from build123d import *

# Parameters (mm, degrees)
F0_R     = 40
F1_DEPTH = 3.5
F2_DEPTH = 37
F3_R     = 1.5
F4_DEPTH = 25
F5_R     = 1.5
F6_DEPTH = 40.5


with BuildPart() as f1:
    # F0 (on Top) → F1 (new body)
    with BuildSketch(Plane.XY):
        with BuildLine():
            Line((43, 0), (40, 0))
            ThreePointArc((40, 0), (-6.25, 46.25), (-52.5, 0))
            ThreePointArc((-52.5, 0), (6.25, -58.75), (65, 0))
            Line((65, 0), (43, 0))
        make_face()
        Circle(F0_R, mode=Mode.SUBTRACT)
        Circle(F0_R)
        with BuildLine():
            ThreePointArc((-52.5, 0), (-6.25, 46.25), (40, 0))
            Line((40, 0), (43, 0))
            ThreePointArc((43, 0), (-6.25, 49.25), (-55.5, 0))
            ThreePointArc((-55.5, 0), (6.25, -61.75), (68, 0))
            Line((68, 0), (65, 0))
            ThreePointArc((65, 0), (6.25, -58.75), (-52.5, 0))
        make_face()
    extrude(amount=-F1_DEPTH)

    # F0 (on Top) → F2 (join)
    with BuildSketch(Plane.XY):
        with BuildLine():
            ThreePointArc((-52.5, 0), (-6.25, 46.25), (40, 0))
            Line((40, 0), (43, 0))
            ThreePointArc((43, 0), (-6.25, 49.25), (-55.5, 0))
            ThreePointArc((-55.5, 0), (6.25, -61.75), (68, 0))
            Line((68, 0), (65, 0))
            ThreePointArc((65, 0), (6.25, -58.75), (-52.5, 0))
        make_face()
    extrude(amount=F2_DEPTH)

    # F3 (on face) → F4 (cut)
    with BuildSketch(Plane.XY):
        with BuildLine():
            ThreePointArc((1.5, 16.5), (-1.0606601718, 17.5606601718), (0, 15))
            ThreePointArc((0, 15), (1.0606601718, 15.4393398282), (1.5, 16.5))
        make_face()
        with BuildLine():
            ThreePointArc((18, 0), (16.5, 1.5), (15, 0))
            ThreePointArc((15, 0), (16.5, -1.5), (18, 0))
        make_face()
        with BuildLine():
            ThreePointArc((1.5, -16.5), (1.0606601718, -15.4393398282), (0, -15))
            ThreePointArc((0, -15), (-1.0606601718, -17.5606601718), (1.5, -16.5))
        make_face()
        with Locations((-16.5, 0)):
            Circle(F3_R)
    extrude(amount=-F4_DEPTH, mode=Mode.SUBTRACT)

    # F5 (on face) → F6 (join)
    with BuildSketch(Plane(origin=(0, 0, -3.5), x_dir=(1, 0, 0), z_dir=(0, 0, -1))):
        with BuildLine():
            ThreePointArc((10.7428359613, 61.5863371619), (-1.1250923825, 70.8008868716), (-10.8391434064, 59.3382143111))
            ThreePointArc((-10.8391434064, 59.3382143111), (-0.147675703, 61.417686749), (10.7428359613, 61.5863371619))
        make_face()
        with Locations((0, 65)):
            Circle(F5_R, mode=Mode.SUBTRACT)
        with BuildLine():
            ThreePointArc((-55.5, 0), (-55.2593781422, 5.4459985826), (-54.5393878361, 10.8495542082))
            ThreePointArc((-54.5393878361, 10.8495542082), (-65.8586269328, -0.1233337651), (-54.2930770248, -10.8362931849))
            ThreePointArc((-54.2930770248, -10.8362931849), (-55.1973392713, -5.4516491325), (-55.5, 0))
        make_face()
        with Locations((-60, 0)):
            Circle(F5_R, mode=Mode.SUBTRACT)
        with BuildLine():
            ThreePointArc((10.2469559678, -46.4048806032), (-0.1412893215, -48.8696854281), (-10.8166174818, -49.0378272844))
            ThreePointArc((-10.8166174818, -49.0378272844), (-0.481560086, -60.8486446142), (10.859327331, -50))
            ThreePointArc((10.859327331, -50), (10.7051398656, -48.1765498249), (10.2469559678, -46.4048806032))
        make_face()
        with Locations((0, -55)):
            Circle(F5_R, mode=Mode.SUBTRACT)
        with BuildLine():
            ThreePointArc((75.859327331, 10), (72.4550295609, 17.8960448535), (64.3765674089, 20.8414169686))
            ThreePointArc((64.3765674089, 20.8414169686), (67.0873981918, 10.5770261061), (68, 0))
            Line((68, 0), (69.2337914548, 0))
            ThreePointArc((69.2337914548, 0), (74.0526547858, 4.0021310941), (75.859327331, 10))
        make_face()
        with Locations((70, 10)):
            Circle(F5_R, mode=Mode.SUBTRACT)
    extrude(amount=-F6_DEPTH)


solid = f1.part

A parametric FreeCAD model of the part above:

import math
import FreeCAD as App
import Part
import Sketcher
from FreeCAD import Vector

doc = App.newDocument("Part")
body = doc.addObject("PartDesign::Body", "Body")

sketch1 = body.newObject("Sketcher::SketchObject", "Sketch")
sketch1.AttachmentSupport = (doc.getObject("XY_Plane"), [""])
sketch1.MapMode = "FlatFace"
sketch1.addGeometry([
    Part.ArcOfCircle(Part.Circle(Vector(-6.25, 0, 0), Vector(0, 0, 1), 49.25), math.radians(0), math.radians(180)),
    Part.ArcOfCircle(Part.Circle(Vector(6.25, 0, 0), Vector(0, 0, 1), 61.75), math.radians(180), math.radians(360)),
    Part.LineSegment(Vector(68, 0, 0), Vector(43, 0, 0)),
], False)
sketch1.addConstraint([
    Sketcher.Constraint("Tangent", 0, 2, 1, 1),
    Sketcher.Constraint("Coincident", 1, 2, 2, 1),
    Sketcher.Constraint("Coincident", 2, 2, 0, 1),
    Sketcher.Constraint("Horizontal", 2),
    Sketcher.Constraint("Symmetric", 0, 3, 1, 3, -1, 1),
    Sketcher.Constraint("PointOnObject", 0, 3, -1),
    Sketcher.Constraint("PointOnObject", 1, 2, -1),
    Sketcher.Constraint("DistanceX", 2, 2, 2, 1, 25.0),
    Sketcher.Constraint("Radius", 0, 49.25),
])
pad1 = body.newObject("PartDesign::Pad", "Pad")
pad1.Profile = sketch1
pad1.Length = 3.5
pad1.Reversed = True

sketch2 = body.newObject("Sketcher::SketchObject", "Sketch001")
sketch2.AttachmentSupport = (doc.getObject("XY_Plane"), [""])
sketch2.MapMode = "FlatFace"
sketch2.addGeometry([
    Part.ArcOfCircle(Part.Circle(Vector(-6.25, 0, 0), Vector(0, 0, 1), 46.25), math.radians(0), math.radians(180)),
    Part.LineSegment(Vector(40, 0, 0), Vector(43, 0, 0)),
    Part.ArcOfCircle(Part.Circle(Vector(-6.25, 0, 0), Vector(0, 0, 1), 49.25), math.radians(0), math.radians(180)),
    Part.ArcOfCircle(Part.Circle(Vector(6.25, 0, 0), Vector(0, 0, 1), 61.75), math.radians(180), math.radians(360)),
    Part.LineSegment(Vector(68, 0, 0), Vector(65, 0, 0)),
    Part.ArcOfCircle(Part.Circle(Vector(6.25, 0, 0), Vector(0, 0, 1), 58.75), math.radians(180), math.radians(360)),
], False)
sketch2.addConstraint([
    Sketcher.Constraint("Coincident", 0, 1, 1, 1),
    Sketcher.Constraint("Coincident", 1, 2, 2, 1),
    Sketcher.Constraint("Tangent", 2, 2, 3, 1),
    Sketcher.Constraint("Coincident", 3, 2, 4, 1),
    Sketcher.Constraint("Coincident", 4, 2, 5, 2),
    Sketcher.Constraint("Tangent", 5, 1, 0, 2),
    Sketcher.Constraint("Horizontal", 1),
    Sketcher.Constraint("Horizontal", 4),
    Sketcher.Constraint("Coincident", 2, 3, 0, 3),
    Sketcher.Constraint("Coincident", 5, 3, 3, 3),
    Sketcher.Constraint("Symmetric", 0, 3, 3, 3, -1, 1),
    Sketcher.Constraint("PointOnObject", 0, 3, -1),
    Sketcher.Constraint("PointOnObject", 0, 1, -1),
    Sketcher.Constraint("PointOnObject", 3, 2, -1),
    Sketcher.Constraint("DistanceX", 1, 1, 1, 2, 3.0),
    Sketcher.Constraint("Radius", 0, 46.25),
    Sketcher.Constraint("Radius", 3, 61.75),
])
pad2 = body.newObject("PartDesign::Pad", "Pad001")
pad2.Profile = sketch2
pad2.Length = 37

sketch3 = body.newObject("Sketcher::SketchObject", "Sketch002")
sketch3.AttachmentSupport = (doc.getObject("XY_Plane"), [""])
sketch3.MapMode = "FlatFace"
sketch3.addGeometry([
    Part.ArcOfCircle(Part.Circle(Vector(0, 16.5, 0), Vector(0, 0, 1), 1.5), math.radians(0), math.radians(270)),
    Part.ArcOfCircle(Part.Circle(Vector(0, 16.5, 0), Vector(0, 0, 1), 1.5), math.radians(-90), math.radians(0)),
    Part.Circle(Vector(16.5, 0, 0), Vector(0, 0, 1), 1.5),
    Part.ArcOfCircle(Part.Circle(Vector(0, -16.5, 0), Vector(0, 0, 1), 1.5), math.radians(0), math.radians(90)),
    Part.ArcOfCircle(Part.Circle(Vector(0, -16.5, 0), Vector(0, 0, 1), 1.5), math.radians(90), math.radians(360)),
    Part.Circle(Vector(-16.5, 0, 0), Vector(0, 0, 1), 1.5),
], False)
sketch3.addConstraint([
    Sketcher.Constraint("Tangent", 0, 1, 1, 2),
    Sketcher.Constraint("Coincident", 1, 1, 0, 2),
    Sketcher.Constraint("Tangent", 3, 1, 4, 2),
    Sketcher.Constraint("Coincident", 4, 1, 3, 2),
    Sketcher.Constraint("Equal", 1, 2),
    Sketcher.Constraint("Equal", 2, 3),
    Sketcher.Constraint("Equal", 4, 5),
    Sketcher.Constraint("Symmetric", 0, 3, 3, 3, -1, 1),
    Sketcher.Constraint("Symmetric", 2, 3, 5, 3, -1, 1),
    Sketcher.Constraint("Symmetric", 0, 1, 3, 1, -1),
    Sketcher.Constraint("PointOnObject", 2, 3, -1),
    Sketcher.Constraint("PointOnObject", 1, 1, -2),
    Sketcher.Constraint("PointOnObject", 4, 1, -2),
    Sketcher.Constraint("Horizontal", 1, 3, 0, 1),
    Sketcher.Constraint("Diameter", 2, 3.0),
    Sketcher.Constraint("DistanceY", -1, 1, 1, 1, 15.0),
    Sketcher.Constraint("DistanceX", 5, 3, 2, 3, 33.0),
])
pocket1 = body.newObject("PartDesign::Pocket", "Pocket")
pocket1.Profile = sketch3
pocket1.Length = 25

sketch4 = body.newObject("Sketcher::SketchObject", "Sketch003")
sketch4.AttachmentSupport = (doc.getObject("XY_Plane"), [""])
sketch4.MapMode = "FlatFace"
sketch4.AttachmentOffset = App.Placement(Vector(0, 0, -3.5), App.Rotation())
sketch4.addGeometry([
    Part.ArcOfCircle(Part.Circle(Vector(0, -60, 0), Vector(0, 0, 1), 10.859327), math.radians(176.506134), math.radians(351.60014)),
    Part.ArcOfCircle(Part.Circle(Vector(6.25, 0, 0), Vector(0, 0, 1), 61.75), math.radians(-106.066167), math.radians(-85.827559)),
    Part.Circle(Vector(0, -65, 0), Vector(0, 0, 1), 1.5),
    Part.ArcOfCircle(Part.Circle(Vector(6.25, 0, 0), Vector(0, 0, 1), 61.75), math.radians(180), math.radians(190.119471)),
    Part.ArcOfCircle(Part.Circle(Vector(-55, 0, 0), Vector(0, 0, 1), 10.859327), math.radians(86.267507), math.radians(272.431003)),
    Part.ArcOfCircle(Part.Circle(Vector(-6.25, 0, 0), Vector(0, 0, 1), 49.25), math.radians(167.289425), math.radians(180)),
    Part.Circle(Vector(-60, 0, 0), Vector(0, 0, 1), 1.5),
    Part.ArcOfCircle(Part.Circle(Vector(-6.25, 0, 0), Vector(0, 0, 1), 49.25), math.radians(70.429677), math.radians(95.32029)),
    Part.ArcOfCircle(Part.Circle(Vector(0, 50, 0), Vector(0, 0, 1), 10.859327), math.radians(0), math.radians(185.083264)),
    Part.ArcOfCircle(Part.Circle(Vector(0, 50, 0), Vector(0, 0, 1), 10.859327), math.radians(-19.333296), math.radians(0)),
    Part.Circle(Vector(0, 55, 0), Vector(0, 0, 1), 1.5),
    Part.ArcOfCircle(Part.Circle(Vector(65, -10, 0), Vector(0, 0, 1), 10.859327), math.radians(-93.291153), math.radians(0)),
    Part.ArcOfCircle(Part.Circle(Vector(6.25, 0, 0), Vector(0, 0, 1), 61.75), math.radians(-19.725414), math.radians(0)),
    Part.LineSegment(Vector(68, 0, 0), Vector(69.233791, 0, 0)),
    Part.ArcOfCircle(Part.Circle(Vector(65, -10, 0), Vector(0, 0, 1), 10.859327), math.radians(0), math.radians(67.053214)),
    Part.Circle(Vector(70, -10, 0), Vector(0, 0, 1), 1.5),
], False)
sketch4.addConstraint([
    Sketcher.Constraint("Coincident", 0, 1, 1, 1),
    Sketcher.Constraint("Coincident", 1, 2, 0, 2),
    Sketcher.Constraint("Coincident", 3, 2, 4, 2),
    Sketcher.Constraint("Coincident", 4, 1, 5, 1),
    Sketcher.Constraint("Tangent", 5, 2, 3, 1),
    Sketcher.Constraint("Coincident", 7, 2, 8, 2),
    Sketcher.Constraint("Tangent", 8, 1, 9, 2),
    Sketcher.Constraint("Coincident", 9, 1, 7, 1),
    Sketcher.Constraint("Coincident", 11, 1, 12, 1),
    Sketcher.Constraint("Coincident", 12, 2, 13, 1),
    Sketcher.Constraint("Coincident", 13, 2, 14, 2),
    Sketcher.Constraint("Tangent", 14, 1, 11, 2),
    Sketcher.Constraint("Horizontal", 13),
    Sketcher.Constraint("Coincident", 3, 3, 1, 3),
    Sketcher.Constraint("Coincident", 7, 3, 5, 3),
    Sketcher.Constraint("Coincident", 12, 3, 1, 3),
    Sketcher.Constraint("Equal", 1, 3),
    Sketcher.Constraint("Equal", 0, 4),
    Sketcher.Constraint("Equal", 2, 6),
    Sketcher.Constraint("Equal", 5, 7),
    Sketcher.Constraint("Equal", 4, 8),
    Sketcher.Constraint("Equal", 8, 9),
    Sketcher.Constraint("Equal", 6, 10),
    Sketcher.Constraint("Equal", 9, 11),
    Sketcher.Constraint("Equal", 3, 12),
    Sketcher.Constraint("Equal", 11, 14),
    Sketcher.Constraint("Equal", 10, 15),
    Sketcher.Constraint("Symmetric", 1, 3, 5, 3, -1, 1),
    Sketcher.Constraint("PointOnObject", 0, 3, -2),
    Sketcher.Constraint("PointOnObject", 1, 3, -1),
    Sketcher.Constraint("PointOnObject", 2, 3, -2),
    Sketcher.Constraint("PointOnObject", 4, 3, -1),
    Sketcher.Constraint("PointOnObject", 6, 3, -1),
    Sketcher.Constraint("PointOnObject", 8, 3, -2),
    Sketcher.Constraint("PointOnObject", 10, 3, -2),
    Sketcher.Constraint("PointOnObject", 12, 2, -1),
    Sketcher.Constraint("Horizontal", 14, 3, 15, 3),
    Sketcher.Constraint("Horizontal", 9, 3, 8, 1),
    Sketcher.Constraint("Horizontal", 15, 3, 14, 1),
    Sketcher.Constraint("Diameter", 2, 3.0),
    Sketcher.Constraint("Radius", 1, 61.75),
    Sketcher.Constraint("Radius", 5, 49.25),
    Sketcher.Constraint("DistanceY", 0, 3, -1, 1, 60.0),
    Sketcher.Constraint("DistanceY", 2, 3, -1, 1, 65.0),
    Sketcher.Constraint("DistanceX", 4, 3, -1, 1, 55.0),
    Sketcher.Constraint("DistanceX", 6, 3, -1, 1, 60.0),
    Sketcher.Constraint("DistanceY", -1, 1, 8, 3, 50.0),
    Sketcher.Constraint("DistanceY", -1, 1, 10, 3, 55.0),
    Sketcher.Constraint("DistanceX", -1, 1, 11, 3, 65.0),
    Sketcher.Constraint("DistanceY", 11, 3, -1, 1, 10.0),
    Sketcher.Constraint("DistanceX", -1, 1, 15, 3, 70.0),
    Sketcher.Constraint("Radius", 0, 10.859327),
])
pad3 = body.newObject("PartDesign::Pad", "Pad002")
pad3.Profile = sketch4
pad3.Length = 40.5

doc.recompute()
